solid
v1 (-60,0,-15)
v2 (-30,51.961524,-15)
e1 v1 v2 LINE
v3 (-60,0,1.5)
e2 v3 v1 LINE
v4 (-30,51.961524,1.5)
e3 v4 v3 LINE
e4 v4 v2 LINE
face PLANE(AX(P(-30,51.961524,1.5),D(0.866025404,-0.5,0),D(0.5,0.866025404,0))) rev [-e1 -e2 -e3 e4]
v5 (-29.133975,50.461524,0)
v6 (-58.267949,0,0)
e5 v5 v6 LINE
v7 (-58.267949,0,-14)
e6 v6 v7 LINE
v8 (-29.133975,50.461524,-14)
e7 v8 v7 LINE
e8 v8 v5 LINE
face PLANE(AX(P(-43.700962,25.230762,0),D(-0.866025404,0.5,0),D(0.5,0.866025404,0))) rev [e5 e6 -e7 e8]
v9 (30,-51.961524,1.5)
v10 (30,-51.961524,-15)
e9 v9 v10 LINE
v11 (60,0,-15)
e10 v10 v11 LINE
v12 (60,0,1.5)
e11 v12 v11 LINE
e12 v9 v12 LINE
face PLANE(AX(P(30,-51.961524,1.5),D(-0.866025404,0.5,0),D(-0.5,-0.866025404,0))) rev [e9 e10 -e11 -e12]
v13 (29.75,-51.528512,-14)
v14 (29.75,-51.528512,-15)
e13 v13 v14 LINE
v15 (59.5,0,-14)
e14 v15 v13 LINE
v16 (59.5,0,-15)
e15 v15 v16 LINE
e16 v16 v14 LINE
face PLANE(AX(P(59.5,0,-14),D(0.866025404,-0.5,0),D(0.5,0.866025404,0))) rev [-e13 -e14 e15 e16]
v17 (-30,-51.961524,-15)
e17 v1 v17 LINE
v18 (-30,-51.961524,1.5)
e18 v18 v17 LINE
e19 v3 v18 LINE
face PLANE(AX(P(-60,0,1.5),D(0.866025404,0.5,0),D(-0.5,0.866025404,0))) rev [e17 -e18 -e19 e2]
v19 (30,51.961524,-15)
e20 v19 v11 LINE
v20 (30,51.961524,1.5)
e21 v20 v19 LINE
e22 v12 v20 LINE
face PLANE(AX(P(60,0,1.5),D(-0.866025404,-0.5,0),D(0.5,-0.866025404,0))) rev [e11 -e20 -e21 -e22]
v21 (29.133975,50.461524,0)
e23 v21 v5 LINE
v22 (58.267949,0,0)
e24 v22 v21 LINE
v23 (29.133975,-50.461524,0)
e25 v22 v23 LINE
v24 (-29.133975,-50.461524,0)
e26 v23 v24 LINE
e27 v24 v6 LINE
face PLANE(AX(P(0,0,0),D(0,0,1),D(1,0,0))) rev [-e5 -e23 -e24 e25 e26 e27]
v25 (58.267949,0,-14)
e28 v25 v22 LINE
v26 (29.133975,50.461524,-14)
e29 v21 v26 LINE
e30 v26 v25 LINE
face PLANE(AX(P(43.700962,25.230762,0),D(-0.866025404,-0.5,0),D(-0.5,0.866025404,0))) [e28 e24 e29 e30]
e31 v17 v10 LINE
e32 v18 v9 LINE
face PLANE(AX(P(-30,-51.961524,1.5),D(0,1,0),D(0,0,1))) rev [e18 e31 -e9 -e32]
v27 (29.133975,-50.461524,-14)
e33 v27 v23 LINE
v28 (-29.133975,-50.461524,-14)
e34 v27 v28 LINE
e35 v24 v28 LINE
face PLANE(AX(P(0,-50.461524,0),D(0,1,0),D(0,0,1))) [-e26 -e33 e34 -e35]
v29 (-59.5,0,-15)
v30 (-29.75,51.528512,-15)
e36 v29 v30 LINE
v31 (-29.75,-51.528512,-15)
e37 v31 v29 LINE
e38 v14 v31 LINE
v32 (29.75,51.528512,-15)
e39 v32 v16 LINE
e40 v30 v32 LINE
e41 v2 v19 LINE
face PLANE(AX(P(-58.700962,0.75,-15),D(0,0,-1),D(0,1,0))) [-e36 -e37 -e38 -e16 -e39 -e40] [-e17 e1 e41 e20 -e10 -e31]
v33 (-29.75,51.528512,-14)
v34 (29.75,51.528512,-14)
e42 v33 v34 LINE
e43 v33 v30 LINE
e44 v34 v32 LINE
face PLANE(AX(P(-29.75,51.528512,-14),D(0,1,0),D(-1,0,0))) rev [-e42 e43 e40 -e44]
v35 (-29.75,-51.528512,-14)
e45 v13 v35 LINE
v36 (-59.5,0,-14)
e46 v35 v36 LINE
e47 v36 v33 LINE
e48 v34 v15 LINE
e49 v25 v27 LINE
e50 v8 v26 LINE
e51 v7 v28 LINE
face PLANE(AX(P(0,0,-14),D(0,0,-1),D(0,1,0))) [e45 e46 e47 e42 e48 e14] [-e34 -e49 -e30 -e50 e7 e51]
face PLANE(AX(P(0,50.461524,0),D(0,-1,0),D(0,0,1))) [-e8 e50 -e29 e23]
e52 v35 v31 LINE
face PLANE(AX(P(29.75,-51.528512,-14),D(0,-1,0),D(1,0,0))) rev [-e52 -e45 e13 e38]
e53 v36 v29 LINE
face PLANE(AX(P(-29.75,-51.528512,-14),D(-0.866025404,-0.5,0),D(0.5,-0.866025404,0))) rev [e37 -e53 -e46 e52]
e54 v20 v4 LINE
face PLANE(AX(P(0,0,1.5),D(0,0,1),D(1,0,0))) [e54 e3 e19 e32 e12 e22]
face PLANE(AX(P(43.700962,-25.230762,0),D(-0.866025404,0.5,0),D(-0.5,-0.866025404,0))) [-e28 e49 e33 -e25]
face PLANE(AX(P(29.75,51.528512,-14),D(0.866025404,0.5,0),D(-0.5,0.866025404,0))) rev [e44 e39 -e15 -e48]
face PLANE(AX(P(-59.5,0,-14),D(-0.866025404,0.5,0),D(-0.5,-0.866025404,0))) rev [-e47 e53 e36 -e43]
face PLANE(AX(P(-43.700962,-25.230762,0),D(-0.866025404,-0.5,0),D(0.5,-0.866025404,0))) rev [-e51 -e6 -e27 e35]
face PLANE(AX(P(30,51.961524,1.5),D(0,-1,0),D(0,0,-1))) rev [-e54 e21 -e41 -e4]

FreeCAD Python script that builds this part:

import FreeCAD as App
import Part
import Sketcher
from FreeCAD import Vector
Q = App.Units.Quantity

doc = App.newDocument("Part")
params = doc.addObject("Spreadsheet::Sheet", "Params")
for row, (alias, value) in enumerate([
    ("sketch1_width", "60 mm"),
    ("sketch1_length", "60 mm"),
    ("pad1_length", "1.5 mm"),
    ("sketch2_width", "15 mm"),
    ("sketch2_height", "60 mm"),
    ("pad2_length", "1.5 mm"),
    ("sketch3_width", "60 mm"),
    ("sketch3_height", "15 mm"),
    ("pad3_length", "1.5 mm"),
    ("sketch4_width", "15 mm"),
    ("sketch4_height", "60 mm"),
    ("pad4_length", "1.5 mm"),
    ("sketch5_width", "59.5 mm"),
    ("pocket1_length", "1 mm"),
], start=1):
    params.set(f"A{row}", alias)
    params.set(f"B{row}", "=" + value)
    params.setAlias(f"B{row}", alias)

body = doc.addObject("PartDesign::Body", "Body")

# Sketch on XY plane
sketch1 = body.newObject("Sketcher::SketchObject", "Sketch")
sketch1.AttachmentSupport = (doc.getObject("XY_Plane"), [""])
sketch1.MapMode = "FlatFace"
sketch1.addGeometry([
    Part.LineSegment(Vector(-30, -52, 0), Vector(30, -52, 0)),  # 0
    Part.LineSegment(Vector(30, -52, 0), Vector(60, 0, 0)),  # 1
    Part.LineSegment(Vector(60, 0, 0), Vector(30, 52, 0)),  # 2
    Part.LineSegment(Vector(30, 52, 0), Vector(-30, 52, 0)),  # 3
    Part.LineSegment(Vector(-30, 52, 0), Vector(-60, 0, 0)),  # 4
    Part.LineSegment(Vector(-60, 0, 0), Vector(-30, -52, 0)),  # 5
], False)
sketch1.addConstraint([
    Sketcher.Constraint("Coincident", 0, 2, 1, 1),
    Sketcher.Constraint("Coincident", 1, 2, 2, 1),
    Sketcher.Constraint("Coincident", 2, 2, 3, 1),
    Sketcher.Constraint("Coincident", 3, 2, 4, 1),
    Sketcher.Constraint("Coincident", 4, 2, 5, 1),
    Sketcher.Constraint("Coincident", 5, 2, 0, 1),
    Sketcher.Constraint("Horizontal", 0),
    Sketcher.Constraint("Horizontal", 3),
    Sketcher.Constraint("Symmetric", 0, 2, 3, 2, -1, 1),
    Sketcher.Constraint("Symmetric", 1, 2, 4, 2, -1, 1),
    Sketcher.Constraint("PointOnObject", 1, 2, -1),
    Sketcher.Constraint("Parallel", 2, 5),
    Sketcher.Constraint("Vertical", 0, 2, 2, 2),
    Sketcher.Constraint("DistanceX", 0, 1, 0, 2, Q("60 mm")),
    Sketcher.Constraint("Angle", 1, Q("60 deg")),
    Sketcher.Constraint("Distance", 1, Q("60 mm")),
])
sketch1.setExpression("Constraints[13]", "Params.sketch1_width")
sketch1.setExpression("Constraints[15]", "Params.sketch1_length")
pad1 = body.newObject("PartDesign::Pad", "Pad")
pad1.Profile = sketch1
pad1.setExpression("Length", "Params.pad1_length")

# Sketch on an angled plane
sketch2 = body.newObject("Sketcher::SketchObject", "Sketch001")
sketch2.Placement = App.Placement(Vector(-45, -25.980762, 0), App.Rotation(Vector(0, 0, 1), Vector(-0.5, 0.866025404, 0), Vector(-0.866025404, -0.5, 0), "ZXY"))
sketch2.addGeometry([
    Part.LineSegment(Vector(-15, 30, 0), Vector(-15, -30, 0)),
    Part.LineSegment(Vector(-15, -30, 0), Vector(0, -30, 0)),
    Part.LineSegment(Vector(0, -30, 0), Vector(0, 30, 0)),
    Part.LineSegment(Vector(0, 30, 0), Vector(-15, 30, 0)),
], False)
sketch2.addConstraint([
    Sketcher.Constraint("Coincident", 0, 2, 1, 1),
    Sketcher.Constraint("Coincident", 1, 2, 2, 1),
    Sketcher.Constraint("Coincident", 2, 2, 3, 1),
    Sketcher.Constraint("Coincident", 3, 2, 0, 1),
    Sketcher.Constraint("Vertical", 0),
    Sketcher.Constraint("Horizontal", 1),
    Sketcher.Constraint("Vertical", 2),
    Sketcher.Constraint("Horizontal", 3),
    Sketcher.Constraint("Symmetric", 1, 2, 2, 2, -1, 1),
    Sketcher.Constraint("DistanceX", 1, 1, 1, 2, Q("15 mm")),
    Sketcher.Constraint("DistanceY", 0, 2, 0, 1, Q("60 mm")),
])
sketch2.setExpression("Constraints[9]", "Params.sketch2_width")
sketch2.setExpression("Constraints[10]", "Params.sketch2_height")
pad2 = body.newObject("PartDesign::Pad", "Pad001")
pad2.Profile = sketch2
pad2.setExpression("Length", "Params.pad2_length")
pad2.Reversed = True

# Sketch on XZ plane
sketch3 = body.newObject("Sketcher::SketchObject", "Sketch002")
sketch3.AttachmentSupport = (doc.getObject("XZ_Plane"), [""])
sketch3.MapMode = "FlatFace"
sketch3.AttachmentOffset = App.Placement(Vector(0, 0, 51.961524), App.Rotation())
sketch3.addGeometry([
    Part.LineSegment(Vector(30, -15, 0), Vector(30, 0, 0)),
    Part.LineSegment(Vector(30, 0, 0), Vector(-30, 0, 0)),
    Part.LineSegment(Vector(-30, 0, 0), Vector(-30, -15, 0)),
    Part.LineSegment(Vector(-30, -15, 0), Vector(30, -15, 0)),
], False)
sketch3.addConstraint([
    Sketcher.Constraint("Coincident", 0, 2, 1, 1),
    Sketcher.Constraint("Coincident", 1, 2, 2, 1),
    Sketcher.Constraint("Coincident", 2, 2, 3, 1),
    Sketcher.Constraint("Coincident", 3, 2, 0, 1),
    Sketcher.Constraint("Vertical", 0),
    Sketcher.Constraint("Horizontal", 1),
    Sketcher.Constraint("Vertical", 2),
    Sketcher.Constraint("Horizontal", 3),
    Sketcher.Constraint("Symmetric", 0, 2, 1, 2, -1, 1),
    Sketcher.Constraint("DistanceX", 1, 2, 1, 1, Q("60 mm")),
    Sketcher.Constraint("DistanceY", 0, 1, 0, 2, Q("15 mm")),
])
sketch3.setExpression("Constraints[9]", "Params.sketch3_width")
sketch3.setExpression("Constraints[10]", "Params.sketch3_height")
pad3 = body.newObject("PartDesign::Pad", "Pad002")
pad3.Profile = sketch3
pad3.setExpression("Length", "Params.pad3_length")
pad3.Reversed = True

# Sketch on an angled plane
sketch4 = body.newObject("Sketcher::SketchObject", "Sketch003")
sketch4.Placement = App.Placement(Vector(45, -25.980762, 0), App.Rotation(Vector(0, 0, -1), Vector(0.5, 0.866025404, 0), Vector(0.866025404, -0.5, 0), "ZXY"))
sketch4.addGeometry([
    Part.LineSegment(Vector(0, 30, 0), Vector(0, -30, 0)),
    Part.LineSegment(Vector(0, -30, 0), Vector(15, -30, 0)),
    Part.LineSegment(Vector(15, -30, 0), Vector(15, 30, 0)),
    Part.LineSegment(Vector(15, 30, 0), Vector(0, 30, 0)),
], False)
sketch4.addConstraint([
    Sketcher.Constraint("Coincident", 0, 2, 1, 1),
    Sketcher.Constraint("Coincident", 1, 2, 2, 1),
    Sketcher.Constraint("Coincident", 2, 2, 3, 1),
    Sketcher.Constraint("Coincident", 3, 2, 0, 1),
    Sketcher.Constraint("Vertical", 0),
    Sketcher.Constraint("Horizontal", 1),
    Sketcher.Constraint("Vertical", 2),
    Sketcher.Constraint("Horizontal", 3),
    Sketcher.Constraint("Symmetric", 0, 2, 3, 2, -1, 1),
    Sketcher.Constraint("DistanceX", 1, 1, 1, 2, Q("15 mm")),
    Sketcher.Constraint("DistanceY", 0, 2, 0, 1, Q("60 mm")),
])
sketch4.setExpression("Constraints[9]", "Params.sketch4_width")
sketch4.setExpression("Constraints[10]", "Params.sketch4_height")
pad4 = body.newObject("PartDesign::Pad", "Pad003")
pad4.Profile = sketch4
pad4.setExpression("Length", "Params.pad4_length")
pad4.Reversed = True
doc.recompute()

mirrored = body.newObject("PartDesign::Mirrored", "Mirrored")
mirrored.Originals = [pad2, pad3, pad4]
mirrored.MirrorPlane = (doc.getObject("XZ_Plane"), [""])
body.Tip = mirrored

# Sketch on XY plane
sketch5 = body.newObject("Sketcher::SketchObject", "Sketch004")
sketch5.AttachmentSupport = (doc.getObject("XY_Plane"), [""])
sketch5.MapMode = "FlatFace"
sketch5.AttachmentOffset = App.Placement(Vector(0, 0, -15), App.Rotation())
sketch5.addGeometry([
    Part.LineSegment(Vector(60, 0, 0), Vector(30, -52, 0)),  # 0
    Part.LineSegment(Vector(30, -52, 0), Vector(-30, -52, 0)),  # 1
    Part.LineSegment(Vector(-30, -52, 0), Vector(-60, 0, 0)),  # 2
    Part.LineSegment(Vector(-60, 0, 0), Vector(-30, 52, 0)),  # 3
    Part.LineSegment(Vector(-30, 52, 0), Vector(30, 52, 0)),  # 4
    Part.LineSegment(Vector(30, 52, 0), Vector(60, 0, 0)),  # 5
], False)
sketch5.addConstraint([
    Sketcher.Constraint("Coincident", 0, 2, 1, 1),
    Sketcher.Constraint("Coincident", 1, 2, 2, 1),
    Sketcher.Constraint("Coincident", 2, 2, 3, 1),
    Sketcher.Constraint("Coincident", 3, 2, 4, 1),
    Sketcher.Constraint("Coincident", 4, 2, 5, 1),
    Sketcher.Constraint("Coincident", 5, 2, 0, 1),
    Sketcher.Constraint("Horizontal", 1),
    Sketcher.Constraint("Horizontal", 4),
    Sketcher.Constraint("Symmetric", 0, 2, 3, 2, -1, 1),
    Sketcher.Constraint("Symmetric", 2, 2, 5, 2, -1, 1),
    Sketcher.Constraint("PointOnObject", 2, 2, -1),
    Sketcher.Constraint("Parallel", 2, 5),
    Sketcher.Constraint("Vertical", 1, 2, 3, 2),
    Sketcher.Constraint("Angle", 0, Q("-120 deg")),
    Sketcher.Constraint("DistanceX", 1, 2, 1, 1, Q("59.5 mm")),
    Sketcher.Constraint("DistanceX", 2, 2, 5, 2, Q("119 mm")),
])
sketch5.setExpression("Constraints[14]", "Params.sketch5_width")
pocket1 = body.newObject("PartDesign::Pocket", "Pocket")
pocket1.Profile = sketch5
pocket1.setExpression("Length", "Params.pocket1_length")
pocket1.Reversed = True

doc.recompute()
